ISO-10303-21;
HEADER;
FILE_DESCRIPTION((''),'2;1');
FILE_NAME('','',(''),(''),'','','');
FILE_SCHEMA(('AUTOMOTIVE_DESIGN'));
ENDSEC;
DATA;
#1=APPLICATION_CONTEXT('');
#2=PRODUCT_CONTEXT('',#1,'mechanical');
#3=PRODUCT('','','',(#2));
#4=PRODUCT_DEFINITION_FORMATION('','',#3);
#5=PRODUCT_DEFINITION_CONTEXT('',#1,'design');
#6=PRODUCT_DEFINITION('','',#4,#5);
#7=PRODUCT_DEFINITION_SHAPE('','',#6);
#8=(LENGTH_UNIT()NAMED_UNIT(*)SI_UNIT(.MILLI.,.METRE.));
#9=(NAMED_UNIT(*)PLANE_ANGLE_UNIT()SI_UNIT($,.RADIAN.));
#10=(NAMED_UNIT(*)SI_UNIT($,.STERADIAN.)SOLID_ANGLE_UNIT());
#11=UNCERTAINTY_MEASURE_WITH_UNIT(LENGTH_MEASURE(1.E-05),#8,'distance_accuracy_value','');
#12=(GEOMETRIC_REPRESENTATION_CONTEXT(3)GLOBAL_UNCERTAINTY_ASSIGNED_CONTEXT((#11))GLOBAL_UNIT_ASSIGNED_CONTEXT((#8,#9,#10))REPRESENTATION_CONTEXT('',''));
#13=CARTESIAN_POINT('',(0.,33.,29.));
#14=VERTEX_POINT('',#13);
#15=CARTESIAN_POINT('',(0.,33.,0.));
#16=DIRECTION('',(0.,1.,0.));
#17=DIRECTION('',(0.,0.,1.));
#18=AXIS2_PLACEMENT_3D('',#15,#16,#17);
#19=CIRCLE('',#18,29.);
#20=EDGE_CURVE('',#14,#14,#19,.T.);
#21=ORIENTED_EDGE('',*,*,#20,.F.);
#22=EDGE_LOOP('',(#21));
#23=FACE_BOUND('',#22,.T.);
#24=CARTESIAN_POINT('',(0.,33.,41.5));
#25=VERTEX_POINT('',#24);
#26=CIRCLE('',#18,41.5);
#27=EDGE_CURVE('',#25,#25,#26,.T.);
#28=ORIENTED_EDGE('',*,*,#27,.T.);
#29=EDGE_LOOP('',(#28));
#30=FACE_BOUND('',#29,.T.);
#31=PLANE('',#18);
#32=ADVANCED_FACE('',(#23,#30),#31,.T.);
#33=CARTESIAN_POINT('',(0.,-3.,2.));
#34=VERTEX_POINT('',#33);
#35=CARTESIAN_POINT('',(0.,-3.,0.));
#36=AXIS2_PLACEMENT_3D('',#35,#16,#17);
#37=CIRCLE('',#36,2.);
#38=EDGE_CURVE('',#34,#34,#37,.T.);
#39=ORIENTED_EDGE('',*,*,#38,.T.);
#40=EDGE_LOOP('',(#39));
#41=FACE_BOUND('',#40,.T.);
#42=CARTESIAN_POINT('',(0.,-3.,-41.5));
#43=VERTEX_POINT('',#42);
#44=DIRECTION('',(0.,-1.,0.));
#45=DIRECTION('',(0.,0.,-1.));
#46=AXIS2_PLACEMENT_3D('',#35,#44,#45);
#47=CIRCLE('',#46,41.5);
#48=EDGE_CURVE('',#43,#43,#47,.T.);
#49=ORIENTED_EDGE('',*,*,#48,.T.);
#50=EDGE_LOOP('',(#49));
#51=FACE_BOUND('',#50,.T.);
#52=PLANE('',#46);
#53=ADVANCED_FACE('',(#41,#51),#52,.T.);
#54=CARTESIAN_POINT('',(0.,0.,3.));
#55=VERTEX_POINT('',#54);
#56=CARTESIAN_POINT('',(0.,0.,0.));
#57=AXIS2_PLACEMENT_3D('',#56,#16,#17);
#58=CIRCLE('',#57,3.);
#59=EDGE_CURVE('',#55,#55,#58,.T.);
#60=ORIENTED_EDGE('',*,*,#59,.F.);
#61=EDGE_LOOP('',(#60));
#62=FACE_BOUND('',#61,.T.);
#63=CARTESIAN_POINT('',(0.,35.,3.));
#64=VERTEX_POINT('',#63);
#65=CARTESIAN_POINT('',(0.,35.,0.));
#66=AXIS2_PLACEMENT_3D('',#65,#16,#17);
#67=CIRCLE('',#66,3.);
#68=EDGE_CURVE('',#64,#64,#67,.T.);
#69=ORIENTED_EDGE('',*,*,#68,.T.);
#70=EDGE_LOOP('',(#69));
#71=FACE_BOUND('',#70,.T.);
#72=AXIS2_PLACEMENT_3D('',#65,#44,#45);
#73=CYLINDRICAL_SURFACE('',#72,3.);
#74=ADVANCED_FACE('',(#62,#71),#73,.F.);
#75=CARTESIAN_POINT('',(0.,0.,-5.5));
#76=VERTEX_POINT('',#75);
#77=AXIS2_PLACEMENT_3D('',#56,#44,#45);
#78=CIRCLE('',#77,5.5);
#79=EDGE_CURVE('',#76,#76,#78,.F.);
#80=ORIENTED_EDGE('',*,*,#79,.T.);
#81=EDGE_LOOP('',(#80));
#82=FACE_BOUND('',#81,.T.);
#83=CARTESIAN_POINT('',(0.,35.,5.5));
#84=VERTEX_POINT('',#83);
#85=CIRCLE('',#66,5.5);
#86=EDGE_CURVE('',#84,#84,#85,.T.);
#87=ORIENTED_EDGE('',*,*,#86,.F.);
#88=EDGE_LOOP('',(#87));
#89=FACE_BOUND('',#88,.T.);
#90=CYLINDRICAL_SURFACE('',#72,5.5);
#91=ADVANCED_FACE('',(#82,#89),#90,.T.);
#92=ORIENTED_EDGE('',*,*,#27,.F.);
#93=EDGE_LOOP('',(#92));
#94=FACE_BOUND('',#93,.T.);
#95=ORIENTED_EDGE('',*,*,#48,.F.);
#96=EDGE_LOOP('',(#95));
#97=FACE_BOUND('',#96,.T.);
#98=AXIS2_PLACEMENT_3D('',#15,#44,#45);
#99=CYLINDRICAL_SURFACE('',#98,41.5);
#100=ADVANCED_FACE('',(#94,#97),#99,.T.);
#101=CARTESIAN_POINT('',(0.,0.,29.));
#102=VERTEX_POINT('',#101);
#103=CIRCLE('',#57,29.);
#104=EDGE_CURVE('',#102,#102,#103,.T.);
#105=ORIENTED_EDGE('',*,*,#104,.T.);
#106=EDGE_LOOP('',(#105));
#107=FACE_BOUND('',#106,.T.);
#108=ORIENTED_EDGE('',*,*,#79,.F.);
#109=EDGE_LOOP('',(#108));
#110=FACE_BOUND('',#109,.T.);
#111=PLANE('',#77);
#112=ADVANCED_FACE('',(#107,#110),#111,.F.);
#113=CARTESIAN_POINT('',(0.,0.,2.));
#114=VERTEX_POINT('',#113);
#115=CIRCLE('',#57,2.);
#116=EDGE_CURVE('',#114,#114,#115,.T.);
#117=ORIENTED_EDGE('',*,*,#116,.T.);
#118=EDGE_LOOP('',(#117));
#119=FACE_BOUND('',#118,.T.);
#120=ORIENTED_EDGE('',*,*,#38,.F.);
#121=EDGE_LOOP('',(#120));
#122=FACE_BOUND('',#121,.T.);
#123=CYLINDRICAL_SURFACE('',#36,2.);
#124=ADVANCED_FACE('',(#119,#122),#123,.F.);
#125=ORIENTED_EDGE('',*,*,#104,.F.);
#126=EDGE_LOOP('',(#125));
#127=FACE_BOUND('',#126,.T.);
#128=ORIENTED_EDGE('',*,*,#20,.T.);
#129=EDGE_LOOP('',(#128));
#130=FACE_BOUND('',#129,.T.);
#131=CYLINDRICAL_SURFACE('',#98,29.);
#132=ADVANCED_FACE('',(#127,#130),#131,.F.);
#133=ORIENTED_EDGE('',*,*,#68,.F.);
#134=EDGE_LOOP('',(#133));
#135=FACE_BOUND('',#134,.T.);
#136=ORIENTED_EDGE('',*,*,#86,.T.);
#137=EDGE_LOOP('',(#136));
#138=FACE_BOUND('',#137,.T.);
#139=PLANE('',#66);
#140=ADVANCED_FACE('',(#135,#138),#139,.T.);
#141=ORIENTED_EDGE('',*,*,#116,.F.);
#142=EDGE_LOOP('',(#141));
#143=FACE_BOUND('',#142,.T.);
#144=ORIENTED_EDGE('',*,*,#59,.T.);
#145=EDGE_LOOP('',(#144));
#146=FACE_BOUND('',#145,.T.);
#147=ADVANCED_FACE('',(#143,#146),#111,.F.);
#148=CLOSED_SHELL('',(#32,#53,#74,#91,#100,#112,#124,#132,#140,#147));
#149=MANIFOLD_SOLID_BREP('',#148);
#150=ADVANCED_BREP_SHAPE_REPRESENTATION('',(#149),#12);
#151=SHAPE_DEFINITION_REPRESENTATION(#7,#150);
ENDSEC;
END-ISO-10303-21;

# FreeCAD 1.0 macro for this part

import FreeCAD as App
import Part
import Sketcher
from FreeCAD import Vector
Q = App.Units.Quantity

doc = App.newDocument("Part")
body = doc.addObject("PartDesign::Body", "Body")

# Sketch on XZ plane
sketch1 = body.newObject("Sketcher::SketchObject", "Sketch")
sketch1.AttachmentSupport = (doc.getObject("XZ_Plane"), [""])
sketch1.MapMode = "FlatFace"
sketch1.addGeometry([
    Part.Circle(Vector(0, 0, 0), Vector(0, 0, 1), 42),
    Part.Circle(Vector(0, 0, 0), Vector(0, 0, 1), 29),
], False)
sketch1.addConstraint([
    Sketcher.Constraint("Coincident", 0, 3, -1, 1),
    Sketcher.Constraint("Coincident", 1, 3, -1, 1),
    Sketcher.Constraint("Diameter", 0, Q("83 mm")),
    Sketcher.Constraint("Diameter", 1, Q("58 mm")),
])
pad1 = body.newObject("PartDesign::Pad", "Pad")
pad1.Profile = sketch1
pad1.Length = 33
pad1.Reversed = True

# Sketch on XZ plane
sketch2 = body.newObject("Sketcher::SketchObject", "Sketch001")
sketch2.AttachmentSupport = (doc.getObject("XZ_Plane"), [""])
sketch2.MapMode = "FlatFace"
sketch2.addGeometry(Part.Circle(Vector(0, 0, 0), Vector(0, 0, 1), 42), False)
sketch2.addConstraint([
    Sketcher.Constraint("Coincident", 0, 3, -1, 1),
    Sketcher.Constraint("Diameter", 0, Q("83 mm")),
])
pad2 = body.newObject("PartDesign::Pad", "Pad001")
pad2.Profile = sketch2
pad2.Length = 3

# Sketch on XZ plane
sketch3 = body.newObject("Sketcher::SketchObject", "Sketch002")
sketch3.AttachmentSupport = (doc.getObject("XZ_Plane"), [""])
sketch3.MapMode = "FlatFace"
sketch3.addGeometry(Part.Circle(Vector(0, 0, 0), Vector(0, 0, 1), 2), False)
sketch3.addConstraint([
    Sketcher.Constraint("Coincident", 0, 3, -1, 1),
    Sketcher.Constraint("Diameter", 0, Q("4 mm")),
])
pocket1 = body.newObject("PartDesign::Pocket", "Pocket")
pocket1.Profile = sketch3
pocket1.Type = "ThroughAll"
pocket1.Reversed = True

# Sketch on XZ plane
sketch4 = body.newObject("Sketcher::SketchObject", "Sketch003")
sketch4.AttachmentSupport = (doc.getObject("XZ_Plane"), [""])
sketch4.MapMode = "FlatFace"
sketch4.addGeometry([
    Part.Circle(Vector(0, 0, 0), Vector(0, 0, 1), 5.5),
    Part.Circle(Vector(0, 0, 0), Vector(0, 0, 1), 3),
], False)
sketch4.addConstraint([
    Sketcher.Constraint("Coincident", 0, 3, -1, 1),
    Sketcher.Constraint("Coincident", 1, 3, -1, 1),
    Sketcher.Constraint("Diameter", 0, Q("11 mm")),
    Sketcher.Constraint("Diameter", 1, Q("6 mm")),
])
pad3 = body.newObject("PartDesign::Pad", "Pad002")
pad3.Profile = sketch4
pad3.Length = 35
pad3.Reversed = True

doc.recompute()
